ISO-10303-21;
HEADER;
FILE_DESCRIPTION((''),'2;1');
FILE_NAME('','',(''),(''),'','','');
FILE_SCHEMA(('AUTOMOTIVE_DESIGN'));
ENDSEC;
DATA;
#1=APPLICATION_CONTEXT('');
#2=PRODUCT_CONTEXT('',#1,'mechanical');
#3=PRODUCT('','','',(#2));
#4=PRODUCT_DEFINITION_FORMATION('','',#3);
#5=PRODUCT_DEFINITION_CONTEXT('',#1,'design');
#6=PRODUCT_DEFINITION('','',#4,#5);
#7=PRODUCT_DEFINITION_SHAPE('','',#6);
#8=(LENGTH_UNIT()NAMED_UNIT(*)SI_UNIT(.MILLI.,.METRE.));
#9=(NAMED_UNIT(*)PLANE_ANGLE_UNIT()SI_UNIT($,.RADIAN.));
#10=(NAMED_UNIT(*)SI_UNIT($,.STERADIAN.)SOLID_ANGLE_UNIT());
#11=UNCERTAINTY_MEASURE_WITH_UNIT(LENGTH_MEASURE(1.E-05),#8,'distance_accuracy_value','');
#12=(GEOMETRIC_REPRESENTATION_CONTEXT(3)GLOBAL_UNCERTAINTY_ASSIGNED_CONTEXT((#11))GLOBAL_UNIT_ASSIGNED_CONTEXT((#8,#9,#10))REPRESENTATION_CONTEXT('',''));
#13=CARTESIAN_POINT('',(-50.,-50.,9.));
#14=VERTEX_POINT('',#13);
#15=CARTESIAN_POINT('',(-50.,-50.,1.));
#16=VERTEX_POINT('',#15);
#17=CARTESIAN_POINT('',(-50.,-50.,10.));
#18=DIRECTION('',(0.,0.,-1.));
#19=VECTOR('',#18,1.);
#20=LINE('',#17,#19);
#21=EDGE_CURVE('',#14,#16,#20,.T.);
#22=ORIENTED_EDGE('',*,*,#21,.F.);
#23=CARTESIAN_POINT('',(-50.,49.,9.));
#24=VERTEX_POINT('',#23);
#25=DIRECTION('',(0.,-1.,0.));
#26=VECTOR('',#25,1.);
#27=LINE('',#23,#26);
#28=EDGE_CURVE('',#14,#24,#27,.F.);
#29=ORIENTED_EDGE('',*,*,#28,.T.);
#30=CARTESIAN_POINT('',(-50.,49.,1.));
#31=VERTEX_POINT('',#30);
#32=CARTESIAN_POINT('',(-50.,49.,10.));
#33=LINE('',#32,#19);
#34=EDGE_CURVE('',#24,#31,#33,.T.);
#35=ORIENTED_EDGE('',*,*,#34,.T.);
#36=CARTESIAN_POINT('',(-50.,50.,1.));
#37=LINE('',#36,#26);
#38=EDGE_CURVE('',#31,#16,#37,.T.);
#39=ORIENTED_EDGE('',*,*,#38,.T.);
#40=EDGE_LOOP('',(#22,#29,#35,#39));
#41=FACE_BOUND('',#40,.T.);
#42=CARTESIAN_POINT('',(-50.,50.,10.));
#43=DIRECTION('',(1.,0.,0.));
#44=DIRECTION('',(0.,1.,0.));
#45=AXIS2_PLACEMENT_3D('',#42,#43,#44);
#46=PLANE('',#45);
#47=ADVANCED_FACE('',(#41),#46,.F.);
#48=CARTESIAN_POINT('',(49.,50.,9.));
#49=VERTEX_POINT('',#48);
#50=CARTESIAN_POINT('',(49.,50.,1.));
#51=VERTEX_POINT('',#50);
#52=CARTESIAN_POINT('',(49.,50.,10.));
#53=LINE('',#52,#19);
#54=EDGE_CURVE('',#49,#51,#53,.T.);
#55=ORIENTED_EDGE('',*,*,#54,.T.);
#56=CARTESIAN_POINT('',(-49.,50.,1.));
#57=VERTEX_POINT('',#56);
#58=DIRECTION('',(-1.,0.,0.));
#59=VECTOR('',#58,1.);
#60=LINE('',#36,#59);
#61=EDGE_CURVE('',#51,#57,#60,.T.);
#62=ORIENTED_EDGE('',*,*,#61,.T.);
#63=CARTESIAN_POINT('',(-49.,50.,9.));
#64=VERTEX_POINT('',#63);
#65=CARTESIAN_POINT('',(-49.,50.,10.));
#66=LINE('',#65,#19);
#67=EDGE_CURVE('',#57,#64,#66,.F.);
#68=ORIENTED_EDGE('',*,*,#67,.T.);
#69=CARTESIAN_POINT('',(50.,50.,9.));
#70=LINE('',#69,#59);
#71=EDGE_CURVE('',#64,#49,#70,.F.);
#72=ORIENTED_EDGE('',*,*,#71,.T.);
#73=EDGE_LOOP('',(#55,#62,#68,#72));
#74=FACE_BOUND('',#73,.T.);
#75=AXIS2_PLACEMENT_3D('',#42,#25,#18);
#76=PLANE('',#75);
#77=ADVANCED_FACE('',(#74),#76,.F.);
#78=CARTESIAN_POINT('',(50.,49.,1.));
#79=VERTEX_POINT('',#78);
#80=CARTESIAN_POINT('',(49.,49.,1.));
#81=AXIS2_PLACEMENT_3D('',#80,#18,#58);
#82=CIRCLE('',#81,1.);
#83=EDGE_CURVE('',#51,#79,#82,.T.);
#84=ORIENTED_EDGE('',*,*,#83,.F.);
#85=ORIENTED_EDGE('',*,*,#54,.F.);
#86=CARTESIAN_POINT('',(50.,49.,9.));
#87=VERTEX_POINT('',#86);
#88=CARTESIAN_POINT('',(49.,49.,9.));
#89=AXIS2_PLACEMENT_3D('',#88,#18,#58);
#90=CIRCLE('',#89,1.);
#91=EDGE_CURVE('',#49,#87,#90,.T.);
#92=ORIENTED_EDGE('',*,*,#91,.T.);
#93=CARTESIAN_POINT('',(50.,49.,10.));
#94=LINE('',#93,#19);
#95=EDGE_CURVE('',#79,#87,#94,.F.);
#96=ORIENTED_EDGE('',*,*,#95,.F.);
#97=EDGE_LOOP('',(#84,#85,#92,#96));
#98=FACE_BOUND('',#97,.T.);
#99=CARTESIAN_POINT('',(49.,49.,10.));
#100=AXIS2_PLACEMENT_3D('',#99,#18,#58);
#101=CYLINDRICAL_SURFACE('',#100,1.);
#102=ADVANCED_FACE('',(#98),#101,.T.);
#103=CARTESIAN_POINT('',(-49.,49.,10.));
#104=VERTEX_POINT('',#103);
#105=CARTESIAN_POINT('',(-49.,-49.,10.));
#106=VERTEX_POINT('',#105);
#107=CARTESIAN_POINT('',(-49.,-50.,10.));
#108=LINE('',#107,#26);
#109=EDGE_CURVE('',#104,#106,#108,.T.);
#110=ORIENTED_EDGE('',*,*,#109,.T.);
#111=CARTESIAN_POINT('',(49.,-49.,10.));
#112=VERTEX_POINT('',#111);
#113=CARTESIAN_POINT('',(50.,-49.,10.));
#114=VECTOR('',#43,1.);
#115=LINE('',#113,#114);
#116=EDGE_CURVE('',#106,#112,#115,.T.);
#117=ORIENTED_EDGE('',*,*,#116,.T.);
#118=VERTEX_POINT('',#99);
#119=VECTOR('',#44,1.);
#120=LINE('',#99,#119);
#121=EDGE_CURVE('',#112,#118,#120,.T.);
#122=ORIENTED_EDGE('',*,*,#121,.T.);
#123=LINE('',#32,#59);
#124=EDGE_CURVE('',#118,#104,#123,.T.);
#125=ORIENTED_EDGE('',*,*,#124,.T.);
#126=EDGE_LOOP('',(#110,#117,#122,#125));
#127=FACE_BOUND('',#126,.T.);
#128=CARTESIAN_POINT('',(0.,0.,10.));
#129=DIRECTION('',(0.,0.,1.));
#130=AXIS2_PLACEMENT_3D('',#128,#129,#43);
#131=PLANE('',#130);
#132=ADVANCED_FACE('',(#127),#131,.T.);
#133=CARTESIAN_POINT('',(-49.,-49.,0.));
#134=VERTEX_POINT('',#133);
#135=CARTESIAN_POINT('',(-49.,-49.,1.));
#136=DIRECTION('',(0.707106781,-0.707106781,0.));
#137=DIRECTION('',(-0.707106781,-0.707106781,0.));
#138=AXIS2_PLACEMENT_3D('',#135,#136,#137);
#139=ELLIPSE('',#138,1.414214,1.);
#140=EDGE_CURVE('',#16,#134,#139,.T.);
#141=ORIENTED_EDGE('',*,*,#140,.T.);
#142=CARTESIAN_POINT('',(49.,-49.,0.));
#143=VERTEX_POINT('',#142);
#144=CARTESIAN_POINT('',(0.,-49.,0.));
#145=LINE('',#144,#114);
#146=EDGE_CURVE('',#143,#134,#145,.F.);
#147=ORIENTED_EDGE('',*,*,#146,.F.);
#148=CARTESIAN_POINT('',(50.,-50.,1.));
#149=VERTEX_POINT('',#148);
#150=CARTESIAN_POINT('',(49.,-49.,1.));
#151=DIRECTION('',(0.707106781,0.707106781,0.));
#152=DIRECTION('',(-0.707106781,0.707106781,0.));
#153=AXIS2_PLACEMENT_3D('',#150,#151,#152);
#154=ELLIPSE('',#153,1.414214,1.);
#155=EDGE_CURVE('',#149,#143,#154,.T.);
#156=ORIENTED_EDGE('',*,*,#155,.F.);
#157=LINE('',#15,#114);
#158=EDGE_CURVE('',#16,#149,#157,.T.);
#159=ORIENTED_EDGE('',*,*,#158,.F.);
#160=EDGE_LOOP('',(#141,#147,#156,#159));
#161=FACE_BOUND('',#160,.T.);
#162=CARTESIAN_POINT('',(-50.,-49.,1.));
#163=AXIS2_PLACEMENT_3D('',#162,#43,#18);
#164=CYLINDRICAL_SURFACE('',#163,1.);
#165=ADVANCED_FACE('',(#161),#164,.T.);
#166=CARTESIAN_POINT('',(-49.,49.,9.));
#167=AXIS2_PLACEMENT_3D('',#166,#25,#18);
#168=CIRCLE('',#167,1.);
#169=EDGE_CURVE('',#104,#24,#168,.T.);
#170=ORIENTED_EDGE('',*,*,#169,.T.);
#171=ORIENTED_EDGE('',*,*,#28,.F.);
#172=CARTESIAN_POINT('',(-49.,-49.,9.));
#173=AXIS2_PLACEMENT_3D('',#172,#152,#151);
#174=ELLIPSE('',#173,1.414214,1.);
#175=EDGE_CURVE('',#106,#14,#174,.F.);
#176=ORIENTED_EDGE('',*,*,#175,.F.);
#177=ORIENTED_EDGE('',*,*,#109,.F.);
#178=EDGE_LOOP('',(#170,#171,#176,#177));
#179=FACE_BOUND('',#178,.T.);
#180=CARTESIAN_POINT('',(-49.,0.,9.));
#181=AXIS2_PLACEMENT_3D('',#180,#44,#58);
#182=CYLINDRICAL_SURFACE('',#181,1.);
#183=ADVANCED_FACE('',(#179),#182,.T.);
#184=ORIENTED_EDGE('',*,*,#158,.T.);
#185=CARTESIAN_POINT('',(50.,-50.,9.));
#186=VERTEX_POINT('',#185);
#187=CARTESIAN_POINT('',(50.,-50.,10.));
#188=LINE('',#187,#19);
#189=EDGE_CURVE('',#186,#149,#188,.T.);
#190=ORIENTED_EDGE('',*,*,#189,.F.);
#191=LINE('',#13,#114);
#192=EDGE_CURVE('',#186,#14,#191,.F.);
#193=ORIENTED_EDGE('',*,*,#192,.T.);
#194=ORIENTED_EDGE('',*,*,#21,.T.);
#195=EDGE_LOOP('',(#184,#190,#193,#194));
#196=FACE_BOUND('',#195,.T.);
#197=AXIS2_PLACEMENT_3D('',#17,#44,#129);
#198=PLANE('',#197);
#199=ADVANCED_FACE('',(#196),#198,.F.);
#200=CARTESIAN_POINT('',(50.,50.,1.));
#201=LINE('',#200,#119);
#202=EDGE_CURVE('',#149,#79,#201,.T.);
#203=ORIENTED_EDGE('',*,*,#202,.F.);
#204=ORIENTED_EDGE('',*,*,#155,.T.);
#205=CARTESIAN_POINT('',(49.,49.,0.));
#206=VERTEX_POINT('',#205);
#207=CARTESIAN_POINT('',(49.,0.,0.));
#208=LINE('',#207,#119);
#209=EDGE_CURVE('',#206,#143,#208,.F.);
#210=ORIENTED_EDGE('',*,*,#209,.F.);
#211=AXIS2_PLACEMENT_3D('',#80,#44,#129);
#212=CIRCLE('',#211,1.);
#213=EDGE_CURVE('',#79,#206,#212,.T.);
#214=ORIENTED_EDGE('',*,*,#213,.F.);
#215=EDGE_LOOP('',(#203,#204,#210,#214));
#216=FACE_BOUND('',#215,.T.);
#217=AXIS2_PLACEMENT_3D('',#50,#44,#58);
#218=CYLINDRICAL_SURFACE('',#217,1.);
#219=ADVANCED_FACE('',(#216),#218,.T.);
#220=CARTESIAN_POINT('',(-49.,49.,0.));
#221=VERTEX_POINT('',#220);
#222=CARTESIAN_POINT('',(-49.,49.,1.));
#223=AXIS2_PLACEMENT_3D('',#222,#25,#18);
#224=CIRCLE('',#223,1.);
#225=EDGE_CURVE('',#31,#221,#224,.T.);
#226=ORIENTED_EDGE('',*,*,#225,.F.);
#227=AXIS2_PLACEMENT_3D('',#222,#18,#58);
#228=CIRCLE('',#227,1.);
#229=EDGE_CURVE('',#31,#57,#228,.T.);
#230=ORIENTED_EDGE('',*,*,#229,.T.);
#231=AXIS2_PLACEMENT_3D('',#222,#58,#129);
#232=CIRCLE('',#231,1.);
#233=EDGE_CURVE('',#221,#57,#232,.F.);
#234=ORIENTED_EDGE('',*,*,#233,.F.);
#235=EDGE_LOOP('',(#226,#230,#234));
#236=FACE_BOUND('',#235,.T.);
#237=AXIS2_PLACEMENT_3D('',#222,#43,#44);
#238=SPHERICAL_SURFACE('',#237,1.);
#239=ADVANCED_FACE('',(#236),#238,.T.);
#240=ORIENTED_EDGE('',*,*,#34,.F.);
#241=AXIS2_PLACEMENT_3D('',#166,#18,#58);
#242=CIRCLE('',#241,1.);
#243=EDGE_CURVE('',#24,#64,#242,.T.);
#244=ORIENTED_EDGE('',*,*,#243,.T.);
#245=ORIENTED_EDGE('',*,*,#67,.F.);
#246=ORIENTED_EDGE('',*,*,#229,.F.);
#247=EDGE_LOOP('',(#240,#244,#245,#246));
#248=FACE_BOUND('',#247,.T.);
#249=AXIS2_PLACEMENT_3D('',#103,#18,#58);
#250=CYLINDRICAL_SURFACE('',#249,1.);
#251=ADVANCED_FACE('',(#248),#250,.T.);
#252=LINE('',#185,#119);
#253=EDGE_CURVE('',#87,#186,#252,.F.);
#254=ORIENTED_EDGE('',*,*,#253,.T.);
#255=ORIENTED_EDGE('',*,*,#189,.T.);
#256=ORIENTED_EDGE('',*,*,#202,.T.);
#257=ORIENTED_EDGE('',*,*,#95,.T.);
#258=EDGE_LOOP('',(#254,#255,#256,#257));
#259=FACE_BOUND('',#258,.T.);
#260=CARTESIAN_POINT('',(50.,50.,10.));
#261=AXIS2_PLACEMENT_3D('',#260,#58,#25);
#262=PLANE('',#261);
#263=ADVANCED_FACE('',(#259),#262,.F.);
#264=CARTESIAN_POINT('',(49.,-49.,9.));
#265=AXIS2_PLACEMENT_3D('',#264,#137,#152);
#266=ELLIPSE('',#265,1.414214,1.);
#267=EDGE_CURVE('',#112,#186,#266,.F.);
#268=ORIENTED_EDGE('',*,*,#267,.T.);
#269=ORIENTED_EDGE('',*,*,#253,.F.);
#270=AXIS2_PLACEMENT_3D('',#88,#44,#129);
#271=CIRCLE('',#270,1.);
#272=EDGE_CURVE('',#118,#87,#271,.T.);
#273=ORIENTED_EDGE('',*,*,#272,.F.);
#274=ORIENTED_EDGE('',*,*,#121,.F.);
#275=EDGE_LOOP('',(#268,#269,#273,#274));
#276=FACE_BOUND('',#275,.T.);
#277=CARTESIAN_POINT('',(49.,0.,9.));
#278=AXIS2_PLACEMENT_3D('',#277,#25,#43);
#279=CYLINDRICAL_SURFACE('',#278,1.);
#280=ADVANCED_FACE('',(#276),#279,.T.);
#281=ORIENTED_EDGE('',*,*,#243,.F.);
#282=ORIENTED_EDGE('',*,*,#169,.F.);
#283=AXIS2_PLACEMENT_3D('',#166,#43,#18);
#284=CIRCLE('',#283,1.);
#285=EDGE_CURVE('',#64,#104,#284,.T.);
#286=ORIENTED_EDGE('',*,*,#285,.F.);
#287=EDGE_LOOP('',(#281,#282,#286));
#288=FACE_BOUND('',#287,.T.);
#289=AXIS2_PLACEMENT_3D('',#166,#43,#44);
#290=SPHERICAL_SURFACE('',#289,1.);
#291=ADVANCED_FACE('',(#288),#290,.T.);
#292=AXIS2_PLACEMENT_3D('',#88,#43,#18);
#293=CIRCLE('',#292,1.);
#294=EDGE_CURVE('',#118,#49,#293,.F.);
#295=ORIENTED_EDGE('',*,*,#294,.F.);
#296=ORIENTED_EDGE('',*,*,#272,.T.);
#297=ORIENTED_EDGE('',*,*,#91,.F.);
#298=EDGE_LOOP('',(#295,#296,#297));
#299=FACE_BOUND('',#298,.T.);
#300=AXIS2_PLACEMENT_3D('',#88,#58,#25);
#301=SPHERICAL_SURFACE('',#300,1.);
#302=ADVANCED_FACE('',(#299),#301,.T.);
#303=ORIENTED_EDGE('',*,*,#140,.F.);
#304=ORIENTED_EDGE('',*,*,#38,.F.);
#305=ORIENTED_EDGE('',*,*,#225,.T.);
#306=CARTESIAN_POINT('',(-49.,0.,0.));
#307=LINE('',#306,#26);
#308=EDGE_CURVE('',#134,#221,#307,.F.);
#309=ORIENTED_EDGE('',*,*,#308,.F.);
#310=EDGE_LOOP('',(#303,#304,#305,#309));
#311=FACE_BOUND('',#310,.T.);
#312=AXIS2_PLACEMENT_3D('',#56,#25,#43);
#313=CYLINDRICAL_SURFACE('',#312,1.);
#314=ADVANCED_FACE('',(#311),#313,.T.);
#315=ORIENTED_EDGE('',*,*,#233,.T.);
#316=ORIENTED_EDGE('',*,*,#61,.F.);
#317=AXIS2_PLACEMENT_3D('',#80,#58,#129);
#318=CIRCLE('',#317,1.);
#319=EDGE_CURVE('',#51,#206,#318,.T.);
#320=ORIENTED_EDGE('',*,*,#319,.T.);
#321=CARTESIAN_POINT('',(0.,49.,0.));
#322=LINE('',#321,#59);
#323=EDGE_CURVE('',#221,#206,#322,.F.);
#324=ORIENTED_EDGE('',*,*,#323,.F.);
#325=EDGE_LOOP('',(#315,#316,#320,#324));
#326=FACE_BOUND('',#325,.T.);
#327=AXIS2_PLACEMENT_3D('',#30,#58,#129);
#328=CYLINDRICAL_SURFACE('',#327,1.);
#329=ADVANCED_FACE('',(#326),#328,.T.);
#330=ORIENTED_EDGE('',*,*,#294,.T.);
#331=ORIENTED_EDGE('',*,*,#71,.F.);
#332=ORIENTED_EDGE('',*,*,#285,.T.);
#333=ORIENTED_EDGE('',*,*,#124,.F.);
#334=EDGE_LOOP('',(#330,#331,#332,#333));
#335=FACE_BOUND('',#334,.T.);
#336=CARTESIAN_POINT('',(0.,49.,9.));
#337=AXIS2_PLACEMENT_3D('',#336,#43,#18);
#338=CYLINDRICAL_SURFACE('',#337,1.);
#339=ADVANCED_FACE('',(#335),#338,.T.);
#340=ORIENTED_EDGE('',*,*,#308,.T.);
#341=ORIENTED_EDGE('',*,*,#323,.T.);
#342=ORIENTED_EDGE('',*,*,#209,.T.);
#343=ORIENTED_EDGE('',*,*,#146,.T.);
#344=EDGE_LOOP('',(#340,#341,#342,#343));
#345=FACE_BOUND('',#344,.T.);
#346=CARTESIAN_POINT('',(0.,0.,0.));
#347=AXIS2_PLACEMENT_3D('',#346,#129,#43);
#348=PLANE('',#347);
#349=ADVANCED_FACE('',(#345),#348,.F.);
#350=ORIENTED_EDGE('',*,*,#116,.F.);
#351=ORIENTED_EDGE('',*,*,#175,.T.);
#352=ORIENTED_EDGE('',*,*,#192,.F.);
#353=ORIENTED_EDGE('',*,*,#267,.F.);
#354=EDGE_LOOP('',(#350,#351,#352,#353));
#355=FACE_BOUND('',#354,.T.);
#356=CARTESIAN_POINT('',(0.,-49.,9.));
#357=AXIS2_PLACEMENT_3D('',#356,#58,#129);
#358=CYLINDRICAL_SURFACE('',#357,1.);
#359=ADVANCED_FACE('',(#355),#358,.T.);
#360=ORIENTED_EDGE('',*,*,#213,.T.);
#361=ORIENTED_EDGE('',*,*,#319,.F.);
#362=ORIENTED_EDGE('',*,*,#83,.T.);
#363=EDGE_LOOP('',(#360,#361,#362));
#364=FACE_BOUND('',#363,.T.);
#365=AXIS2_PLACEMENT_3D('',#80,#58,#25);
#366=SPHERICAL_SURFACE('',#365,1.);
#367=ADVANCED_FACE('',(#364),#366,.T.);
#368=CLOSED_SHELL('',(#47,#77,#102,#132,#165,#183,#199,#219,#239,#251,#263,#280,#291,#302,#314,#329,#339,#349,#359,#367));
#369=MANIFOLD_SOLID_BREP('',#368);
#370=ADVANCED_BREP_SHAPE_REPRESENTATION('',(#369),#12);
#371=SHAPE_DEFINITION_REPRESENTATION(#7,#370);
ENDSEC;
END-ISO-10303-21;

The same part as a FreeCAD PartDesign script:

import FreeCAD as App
import Part
import Sketcher
from FreeCAD import Vector


def edges_at(feature, points):
    """Names of the edges that pass closest to the given points."""
    edges = feature.Shape.Edges
    near = lambda p: min(range(len(edges)), key=lambda i: edges[i].distToShape(Part.Vertex(*p))[0])
    return sorted({f"Edge{near(p) + 1}" for p in points})

doc = App.newDocument("Part")
params = doc.addObject("Spreadsheet::Sheet", "Params")
for row, (alias, value) in enumerate([
    ("sketch1_width", "100 mm"),
    ("pad1_length", "10 mm"),
    ("fillet_radius", "1 mm"),
    ("fillet2_radius", "1 mm"),
    ("fillet3_radius", "1 mm"),
], start=1):
    params.set(f"A{row}", alias)
    params.set(f"B{row}", "=" + value)
    params.setAlias(f"B{row}", alias)

body = doc.addObject("PartDesign::Body", "Body")

sketch1 = doc.addObject("Sketcher::SketchObject", "Sketch")
body.addObject(sketch1)
sketch1.AttachmentSupport = (doc.XY_Plane, [""])
sketch1.MapMode = "FlatFace"
sketch1.addGeometry(Part.LineSegment(Vector(-50, 50, 0), Vector(-50, -50, 0)), False)
sketch1.addGeometry(Part.LineSegment(Vector(-50, -50, 0), Vector(50, -50, 0)), False)
sketch1.addGeometry(Part.LineSegment(Vector(50, -50, 0), Vector(50, 50, 0)), False)
sketch1.addGeometry(Part.LineSegment(Vector(50, 50, 0), Vector(-50, 50, 0)), False)
sketch1.addConstraint(Sketcher.Constraint("Coincident", 0, 2, 1, 1))
sketch1.addConstraint(Sketcher.Constraint("Coincident", 1, 2, 2, 1))
sketch1.addConstraint(Sketcher.Constraint("Coincident", 2, 2, 3, 1))
sketch1.addConstraint(Sketcher.Constraint("Coincident", 3, 2, 0, 1))
sketch1.addConstraint(Sketcher.Constraint("Vertical", 0))
sketch1.addConstraint(Sketcher.Constraint("Horizontal", 1))
sketch1.addConstraint(Sketcher.Constraint("Vertical", 2))
sketch1.addConstraint(Sketcher.Constraint("Horizontal", 3))
sketch1.addConstraint(Sketcher.Constraint("Symmetric", 0, 2, 2, 2, -1, 1))
sketch1.addConstraint(Sketcher.Constraint("Equal", 3, 0))
sketch1.addConstraint(Sketcher.Constraint("DistanceX", 1, 1, 1, 2, 100.0))
sketch1.setExpression("Constraints[10]", "Params.sketch1_width")
pad1 = doc.addObject("PartDesign::Pad", "Pad")
body.addObject(pad1)
pad1.Profile = sketch1
pad1.setExpression("Length", "Params.pad1_length")
doc.recompute()

fillet = doc.addObject("PartDesign::Fillet", "Fillet")
body.addObject(fillet)
fillet.Base = (pad1, edges_at(pad1, [(0, 50, 10)]))
fillet.setExpression("Radius", "Params.fillet_radius")
doc.recompute()

fillet2 = doc.addObject("PartDesign::Fillet", "Fillet001")
body.addObject(fillet2)
fillet2.Base = (fillet, edges_at(fillet, [(0, 50, 0)]))
fillet2.setExpression("Radius", "Params.fillet2_radius")
doc.recompute()

fillet3 = doc.addObject("PartDesign::Fillet", "Fillet002")
body.addObject(fillet3)
fillet3.Base = (fillet2, edges_at(fillet2, [
    (-50, -0.5, 10),
    (-50, 50, 5),
    (-50, 49.707, 9.707),
    (50, 50, 5),
    (50, 49.707, 9.707),
    (0, -50, 10),
    (-50, -0.5, 0),
    (-50, 49.707, 0.293),
    (50, 49.707, 0.293),
    (50, -0.5, 10),
    (0, -50, 0),
    (50, -0.5, 0),
]))
fillet3.setExpression("Radius", "Params.fillet3_radius")

doc.recompute()
